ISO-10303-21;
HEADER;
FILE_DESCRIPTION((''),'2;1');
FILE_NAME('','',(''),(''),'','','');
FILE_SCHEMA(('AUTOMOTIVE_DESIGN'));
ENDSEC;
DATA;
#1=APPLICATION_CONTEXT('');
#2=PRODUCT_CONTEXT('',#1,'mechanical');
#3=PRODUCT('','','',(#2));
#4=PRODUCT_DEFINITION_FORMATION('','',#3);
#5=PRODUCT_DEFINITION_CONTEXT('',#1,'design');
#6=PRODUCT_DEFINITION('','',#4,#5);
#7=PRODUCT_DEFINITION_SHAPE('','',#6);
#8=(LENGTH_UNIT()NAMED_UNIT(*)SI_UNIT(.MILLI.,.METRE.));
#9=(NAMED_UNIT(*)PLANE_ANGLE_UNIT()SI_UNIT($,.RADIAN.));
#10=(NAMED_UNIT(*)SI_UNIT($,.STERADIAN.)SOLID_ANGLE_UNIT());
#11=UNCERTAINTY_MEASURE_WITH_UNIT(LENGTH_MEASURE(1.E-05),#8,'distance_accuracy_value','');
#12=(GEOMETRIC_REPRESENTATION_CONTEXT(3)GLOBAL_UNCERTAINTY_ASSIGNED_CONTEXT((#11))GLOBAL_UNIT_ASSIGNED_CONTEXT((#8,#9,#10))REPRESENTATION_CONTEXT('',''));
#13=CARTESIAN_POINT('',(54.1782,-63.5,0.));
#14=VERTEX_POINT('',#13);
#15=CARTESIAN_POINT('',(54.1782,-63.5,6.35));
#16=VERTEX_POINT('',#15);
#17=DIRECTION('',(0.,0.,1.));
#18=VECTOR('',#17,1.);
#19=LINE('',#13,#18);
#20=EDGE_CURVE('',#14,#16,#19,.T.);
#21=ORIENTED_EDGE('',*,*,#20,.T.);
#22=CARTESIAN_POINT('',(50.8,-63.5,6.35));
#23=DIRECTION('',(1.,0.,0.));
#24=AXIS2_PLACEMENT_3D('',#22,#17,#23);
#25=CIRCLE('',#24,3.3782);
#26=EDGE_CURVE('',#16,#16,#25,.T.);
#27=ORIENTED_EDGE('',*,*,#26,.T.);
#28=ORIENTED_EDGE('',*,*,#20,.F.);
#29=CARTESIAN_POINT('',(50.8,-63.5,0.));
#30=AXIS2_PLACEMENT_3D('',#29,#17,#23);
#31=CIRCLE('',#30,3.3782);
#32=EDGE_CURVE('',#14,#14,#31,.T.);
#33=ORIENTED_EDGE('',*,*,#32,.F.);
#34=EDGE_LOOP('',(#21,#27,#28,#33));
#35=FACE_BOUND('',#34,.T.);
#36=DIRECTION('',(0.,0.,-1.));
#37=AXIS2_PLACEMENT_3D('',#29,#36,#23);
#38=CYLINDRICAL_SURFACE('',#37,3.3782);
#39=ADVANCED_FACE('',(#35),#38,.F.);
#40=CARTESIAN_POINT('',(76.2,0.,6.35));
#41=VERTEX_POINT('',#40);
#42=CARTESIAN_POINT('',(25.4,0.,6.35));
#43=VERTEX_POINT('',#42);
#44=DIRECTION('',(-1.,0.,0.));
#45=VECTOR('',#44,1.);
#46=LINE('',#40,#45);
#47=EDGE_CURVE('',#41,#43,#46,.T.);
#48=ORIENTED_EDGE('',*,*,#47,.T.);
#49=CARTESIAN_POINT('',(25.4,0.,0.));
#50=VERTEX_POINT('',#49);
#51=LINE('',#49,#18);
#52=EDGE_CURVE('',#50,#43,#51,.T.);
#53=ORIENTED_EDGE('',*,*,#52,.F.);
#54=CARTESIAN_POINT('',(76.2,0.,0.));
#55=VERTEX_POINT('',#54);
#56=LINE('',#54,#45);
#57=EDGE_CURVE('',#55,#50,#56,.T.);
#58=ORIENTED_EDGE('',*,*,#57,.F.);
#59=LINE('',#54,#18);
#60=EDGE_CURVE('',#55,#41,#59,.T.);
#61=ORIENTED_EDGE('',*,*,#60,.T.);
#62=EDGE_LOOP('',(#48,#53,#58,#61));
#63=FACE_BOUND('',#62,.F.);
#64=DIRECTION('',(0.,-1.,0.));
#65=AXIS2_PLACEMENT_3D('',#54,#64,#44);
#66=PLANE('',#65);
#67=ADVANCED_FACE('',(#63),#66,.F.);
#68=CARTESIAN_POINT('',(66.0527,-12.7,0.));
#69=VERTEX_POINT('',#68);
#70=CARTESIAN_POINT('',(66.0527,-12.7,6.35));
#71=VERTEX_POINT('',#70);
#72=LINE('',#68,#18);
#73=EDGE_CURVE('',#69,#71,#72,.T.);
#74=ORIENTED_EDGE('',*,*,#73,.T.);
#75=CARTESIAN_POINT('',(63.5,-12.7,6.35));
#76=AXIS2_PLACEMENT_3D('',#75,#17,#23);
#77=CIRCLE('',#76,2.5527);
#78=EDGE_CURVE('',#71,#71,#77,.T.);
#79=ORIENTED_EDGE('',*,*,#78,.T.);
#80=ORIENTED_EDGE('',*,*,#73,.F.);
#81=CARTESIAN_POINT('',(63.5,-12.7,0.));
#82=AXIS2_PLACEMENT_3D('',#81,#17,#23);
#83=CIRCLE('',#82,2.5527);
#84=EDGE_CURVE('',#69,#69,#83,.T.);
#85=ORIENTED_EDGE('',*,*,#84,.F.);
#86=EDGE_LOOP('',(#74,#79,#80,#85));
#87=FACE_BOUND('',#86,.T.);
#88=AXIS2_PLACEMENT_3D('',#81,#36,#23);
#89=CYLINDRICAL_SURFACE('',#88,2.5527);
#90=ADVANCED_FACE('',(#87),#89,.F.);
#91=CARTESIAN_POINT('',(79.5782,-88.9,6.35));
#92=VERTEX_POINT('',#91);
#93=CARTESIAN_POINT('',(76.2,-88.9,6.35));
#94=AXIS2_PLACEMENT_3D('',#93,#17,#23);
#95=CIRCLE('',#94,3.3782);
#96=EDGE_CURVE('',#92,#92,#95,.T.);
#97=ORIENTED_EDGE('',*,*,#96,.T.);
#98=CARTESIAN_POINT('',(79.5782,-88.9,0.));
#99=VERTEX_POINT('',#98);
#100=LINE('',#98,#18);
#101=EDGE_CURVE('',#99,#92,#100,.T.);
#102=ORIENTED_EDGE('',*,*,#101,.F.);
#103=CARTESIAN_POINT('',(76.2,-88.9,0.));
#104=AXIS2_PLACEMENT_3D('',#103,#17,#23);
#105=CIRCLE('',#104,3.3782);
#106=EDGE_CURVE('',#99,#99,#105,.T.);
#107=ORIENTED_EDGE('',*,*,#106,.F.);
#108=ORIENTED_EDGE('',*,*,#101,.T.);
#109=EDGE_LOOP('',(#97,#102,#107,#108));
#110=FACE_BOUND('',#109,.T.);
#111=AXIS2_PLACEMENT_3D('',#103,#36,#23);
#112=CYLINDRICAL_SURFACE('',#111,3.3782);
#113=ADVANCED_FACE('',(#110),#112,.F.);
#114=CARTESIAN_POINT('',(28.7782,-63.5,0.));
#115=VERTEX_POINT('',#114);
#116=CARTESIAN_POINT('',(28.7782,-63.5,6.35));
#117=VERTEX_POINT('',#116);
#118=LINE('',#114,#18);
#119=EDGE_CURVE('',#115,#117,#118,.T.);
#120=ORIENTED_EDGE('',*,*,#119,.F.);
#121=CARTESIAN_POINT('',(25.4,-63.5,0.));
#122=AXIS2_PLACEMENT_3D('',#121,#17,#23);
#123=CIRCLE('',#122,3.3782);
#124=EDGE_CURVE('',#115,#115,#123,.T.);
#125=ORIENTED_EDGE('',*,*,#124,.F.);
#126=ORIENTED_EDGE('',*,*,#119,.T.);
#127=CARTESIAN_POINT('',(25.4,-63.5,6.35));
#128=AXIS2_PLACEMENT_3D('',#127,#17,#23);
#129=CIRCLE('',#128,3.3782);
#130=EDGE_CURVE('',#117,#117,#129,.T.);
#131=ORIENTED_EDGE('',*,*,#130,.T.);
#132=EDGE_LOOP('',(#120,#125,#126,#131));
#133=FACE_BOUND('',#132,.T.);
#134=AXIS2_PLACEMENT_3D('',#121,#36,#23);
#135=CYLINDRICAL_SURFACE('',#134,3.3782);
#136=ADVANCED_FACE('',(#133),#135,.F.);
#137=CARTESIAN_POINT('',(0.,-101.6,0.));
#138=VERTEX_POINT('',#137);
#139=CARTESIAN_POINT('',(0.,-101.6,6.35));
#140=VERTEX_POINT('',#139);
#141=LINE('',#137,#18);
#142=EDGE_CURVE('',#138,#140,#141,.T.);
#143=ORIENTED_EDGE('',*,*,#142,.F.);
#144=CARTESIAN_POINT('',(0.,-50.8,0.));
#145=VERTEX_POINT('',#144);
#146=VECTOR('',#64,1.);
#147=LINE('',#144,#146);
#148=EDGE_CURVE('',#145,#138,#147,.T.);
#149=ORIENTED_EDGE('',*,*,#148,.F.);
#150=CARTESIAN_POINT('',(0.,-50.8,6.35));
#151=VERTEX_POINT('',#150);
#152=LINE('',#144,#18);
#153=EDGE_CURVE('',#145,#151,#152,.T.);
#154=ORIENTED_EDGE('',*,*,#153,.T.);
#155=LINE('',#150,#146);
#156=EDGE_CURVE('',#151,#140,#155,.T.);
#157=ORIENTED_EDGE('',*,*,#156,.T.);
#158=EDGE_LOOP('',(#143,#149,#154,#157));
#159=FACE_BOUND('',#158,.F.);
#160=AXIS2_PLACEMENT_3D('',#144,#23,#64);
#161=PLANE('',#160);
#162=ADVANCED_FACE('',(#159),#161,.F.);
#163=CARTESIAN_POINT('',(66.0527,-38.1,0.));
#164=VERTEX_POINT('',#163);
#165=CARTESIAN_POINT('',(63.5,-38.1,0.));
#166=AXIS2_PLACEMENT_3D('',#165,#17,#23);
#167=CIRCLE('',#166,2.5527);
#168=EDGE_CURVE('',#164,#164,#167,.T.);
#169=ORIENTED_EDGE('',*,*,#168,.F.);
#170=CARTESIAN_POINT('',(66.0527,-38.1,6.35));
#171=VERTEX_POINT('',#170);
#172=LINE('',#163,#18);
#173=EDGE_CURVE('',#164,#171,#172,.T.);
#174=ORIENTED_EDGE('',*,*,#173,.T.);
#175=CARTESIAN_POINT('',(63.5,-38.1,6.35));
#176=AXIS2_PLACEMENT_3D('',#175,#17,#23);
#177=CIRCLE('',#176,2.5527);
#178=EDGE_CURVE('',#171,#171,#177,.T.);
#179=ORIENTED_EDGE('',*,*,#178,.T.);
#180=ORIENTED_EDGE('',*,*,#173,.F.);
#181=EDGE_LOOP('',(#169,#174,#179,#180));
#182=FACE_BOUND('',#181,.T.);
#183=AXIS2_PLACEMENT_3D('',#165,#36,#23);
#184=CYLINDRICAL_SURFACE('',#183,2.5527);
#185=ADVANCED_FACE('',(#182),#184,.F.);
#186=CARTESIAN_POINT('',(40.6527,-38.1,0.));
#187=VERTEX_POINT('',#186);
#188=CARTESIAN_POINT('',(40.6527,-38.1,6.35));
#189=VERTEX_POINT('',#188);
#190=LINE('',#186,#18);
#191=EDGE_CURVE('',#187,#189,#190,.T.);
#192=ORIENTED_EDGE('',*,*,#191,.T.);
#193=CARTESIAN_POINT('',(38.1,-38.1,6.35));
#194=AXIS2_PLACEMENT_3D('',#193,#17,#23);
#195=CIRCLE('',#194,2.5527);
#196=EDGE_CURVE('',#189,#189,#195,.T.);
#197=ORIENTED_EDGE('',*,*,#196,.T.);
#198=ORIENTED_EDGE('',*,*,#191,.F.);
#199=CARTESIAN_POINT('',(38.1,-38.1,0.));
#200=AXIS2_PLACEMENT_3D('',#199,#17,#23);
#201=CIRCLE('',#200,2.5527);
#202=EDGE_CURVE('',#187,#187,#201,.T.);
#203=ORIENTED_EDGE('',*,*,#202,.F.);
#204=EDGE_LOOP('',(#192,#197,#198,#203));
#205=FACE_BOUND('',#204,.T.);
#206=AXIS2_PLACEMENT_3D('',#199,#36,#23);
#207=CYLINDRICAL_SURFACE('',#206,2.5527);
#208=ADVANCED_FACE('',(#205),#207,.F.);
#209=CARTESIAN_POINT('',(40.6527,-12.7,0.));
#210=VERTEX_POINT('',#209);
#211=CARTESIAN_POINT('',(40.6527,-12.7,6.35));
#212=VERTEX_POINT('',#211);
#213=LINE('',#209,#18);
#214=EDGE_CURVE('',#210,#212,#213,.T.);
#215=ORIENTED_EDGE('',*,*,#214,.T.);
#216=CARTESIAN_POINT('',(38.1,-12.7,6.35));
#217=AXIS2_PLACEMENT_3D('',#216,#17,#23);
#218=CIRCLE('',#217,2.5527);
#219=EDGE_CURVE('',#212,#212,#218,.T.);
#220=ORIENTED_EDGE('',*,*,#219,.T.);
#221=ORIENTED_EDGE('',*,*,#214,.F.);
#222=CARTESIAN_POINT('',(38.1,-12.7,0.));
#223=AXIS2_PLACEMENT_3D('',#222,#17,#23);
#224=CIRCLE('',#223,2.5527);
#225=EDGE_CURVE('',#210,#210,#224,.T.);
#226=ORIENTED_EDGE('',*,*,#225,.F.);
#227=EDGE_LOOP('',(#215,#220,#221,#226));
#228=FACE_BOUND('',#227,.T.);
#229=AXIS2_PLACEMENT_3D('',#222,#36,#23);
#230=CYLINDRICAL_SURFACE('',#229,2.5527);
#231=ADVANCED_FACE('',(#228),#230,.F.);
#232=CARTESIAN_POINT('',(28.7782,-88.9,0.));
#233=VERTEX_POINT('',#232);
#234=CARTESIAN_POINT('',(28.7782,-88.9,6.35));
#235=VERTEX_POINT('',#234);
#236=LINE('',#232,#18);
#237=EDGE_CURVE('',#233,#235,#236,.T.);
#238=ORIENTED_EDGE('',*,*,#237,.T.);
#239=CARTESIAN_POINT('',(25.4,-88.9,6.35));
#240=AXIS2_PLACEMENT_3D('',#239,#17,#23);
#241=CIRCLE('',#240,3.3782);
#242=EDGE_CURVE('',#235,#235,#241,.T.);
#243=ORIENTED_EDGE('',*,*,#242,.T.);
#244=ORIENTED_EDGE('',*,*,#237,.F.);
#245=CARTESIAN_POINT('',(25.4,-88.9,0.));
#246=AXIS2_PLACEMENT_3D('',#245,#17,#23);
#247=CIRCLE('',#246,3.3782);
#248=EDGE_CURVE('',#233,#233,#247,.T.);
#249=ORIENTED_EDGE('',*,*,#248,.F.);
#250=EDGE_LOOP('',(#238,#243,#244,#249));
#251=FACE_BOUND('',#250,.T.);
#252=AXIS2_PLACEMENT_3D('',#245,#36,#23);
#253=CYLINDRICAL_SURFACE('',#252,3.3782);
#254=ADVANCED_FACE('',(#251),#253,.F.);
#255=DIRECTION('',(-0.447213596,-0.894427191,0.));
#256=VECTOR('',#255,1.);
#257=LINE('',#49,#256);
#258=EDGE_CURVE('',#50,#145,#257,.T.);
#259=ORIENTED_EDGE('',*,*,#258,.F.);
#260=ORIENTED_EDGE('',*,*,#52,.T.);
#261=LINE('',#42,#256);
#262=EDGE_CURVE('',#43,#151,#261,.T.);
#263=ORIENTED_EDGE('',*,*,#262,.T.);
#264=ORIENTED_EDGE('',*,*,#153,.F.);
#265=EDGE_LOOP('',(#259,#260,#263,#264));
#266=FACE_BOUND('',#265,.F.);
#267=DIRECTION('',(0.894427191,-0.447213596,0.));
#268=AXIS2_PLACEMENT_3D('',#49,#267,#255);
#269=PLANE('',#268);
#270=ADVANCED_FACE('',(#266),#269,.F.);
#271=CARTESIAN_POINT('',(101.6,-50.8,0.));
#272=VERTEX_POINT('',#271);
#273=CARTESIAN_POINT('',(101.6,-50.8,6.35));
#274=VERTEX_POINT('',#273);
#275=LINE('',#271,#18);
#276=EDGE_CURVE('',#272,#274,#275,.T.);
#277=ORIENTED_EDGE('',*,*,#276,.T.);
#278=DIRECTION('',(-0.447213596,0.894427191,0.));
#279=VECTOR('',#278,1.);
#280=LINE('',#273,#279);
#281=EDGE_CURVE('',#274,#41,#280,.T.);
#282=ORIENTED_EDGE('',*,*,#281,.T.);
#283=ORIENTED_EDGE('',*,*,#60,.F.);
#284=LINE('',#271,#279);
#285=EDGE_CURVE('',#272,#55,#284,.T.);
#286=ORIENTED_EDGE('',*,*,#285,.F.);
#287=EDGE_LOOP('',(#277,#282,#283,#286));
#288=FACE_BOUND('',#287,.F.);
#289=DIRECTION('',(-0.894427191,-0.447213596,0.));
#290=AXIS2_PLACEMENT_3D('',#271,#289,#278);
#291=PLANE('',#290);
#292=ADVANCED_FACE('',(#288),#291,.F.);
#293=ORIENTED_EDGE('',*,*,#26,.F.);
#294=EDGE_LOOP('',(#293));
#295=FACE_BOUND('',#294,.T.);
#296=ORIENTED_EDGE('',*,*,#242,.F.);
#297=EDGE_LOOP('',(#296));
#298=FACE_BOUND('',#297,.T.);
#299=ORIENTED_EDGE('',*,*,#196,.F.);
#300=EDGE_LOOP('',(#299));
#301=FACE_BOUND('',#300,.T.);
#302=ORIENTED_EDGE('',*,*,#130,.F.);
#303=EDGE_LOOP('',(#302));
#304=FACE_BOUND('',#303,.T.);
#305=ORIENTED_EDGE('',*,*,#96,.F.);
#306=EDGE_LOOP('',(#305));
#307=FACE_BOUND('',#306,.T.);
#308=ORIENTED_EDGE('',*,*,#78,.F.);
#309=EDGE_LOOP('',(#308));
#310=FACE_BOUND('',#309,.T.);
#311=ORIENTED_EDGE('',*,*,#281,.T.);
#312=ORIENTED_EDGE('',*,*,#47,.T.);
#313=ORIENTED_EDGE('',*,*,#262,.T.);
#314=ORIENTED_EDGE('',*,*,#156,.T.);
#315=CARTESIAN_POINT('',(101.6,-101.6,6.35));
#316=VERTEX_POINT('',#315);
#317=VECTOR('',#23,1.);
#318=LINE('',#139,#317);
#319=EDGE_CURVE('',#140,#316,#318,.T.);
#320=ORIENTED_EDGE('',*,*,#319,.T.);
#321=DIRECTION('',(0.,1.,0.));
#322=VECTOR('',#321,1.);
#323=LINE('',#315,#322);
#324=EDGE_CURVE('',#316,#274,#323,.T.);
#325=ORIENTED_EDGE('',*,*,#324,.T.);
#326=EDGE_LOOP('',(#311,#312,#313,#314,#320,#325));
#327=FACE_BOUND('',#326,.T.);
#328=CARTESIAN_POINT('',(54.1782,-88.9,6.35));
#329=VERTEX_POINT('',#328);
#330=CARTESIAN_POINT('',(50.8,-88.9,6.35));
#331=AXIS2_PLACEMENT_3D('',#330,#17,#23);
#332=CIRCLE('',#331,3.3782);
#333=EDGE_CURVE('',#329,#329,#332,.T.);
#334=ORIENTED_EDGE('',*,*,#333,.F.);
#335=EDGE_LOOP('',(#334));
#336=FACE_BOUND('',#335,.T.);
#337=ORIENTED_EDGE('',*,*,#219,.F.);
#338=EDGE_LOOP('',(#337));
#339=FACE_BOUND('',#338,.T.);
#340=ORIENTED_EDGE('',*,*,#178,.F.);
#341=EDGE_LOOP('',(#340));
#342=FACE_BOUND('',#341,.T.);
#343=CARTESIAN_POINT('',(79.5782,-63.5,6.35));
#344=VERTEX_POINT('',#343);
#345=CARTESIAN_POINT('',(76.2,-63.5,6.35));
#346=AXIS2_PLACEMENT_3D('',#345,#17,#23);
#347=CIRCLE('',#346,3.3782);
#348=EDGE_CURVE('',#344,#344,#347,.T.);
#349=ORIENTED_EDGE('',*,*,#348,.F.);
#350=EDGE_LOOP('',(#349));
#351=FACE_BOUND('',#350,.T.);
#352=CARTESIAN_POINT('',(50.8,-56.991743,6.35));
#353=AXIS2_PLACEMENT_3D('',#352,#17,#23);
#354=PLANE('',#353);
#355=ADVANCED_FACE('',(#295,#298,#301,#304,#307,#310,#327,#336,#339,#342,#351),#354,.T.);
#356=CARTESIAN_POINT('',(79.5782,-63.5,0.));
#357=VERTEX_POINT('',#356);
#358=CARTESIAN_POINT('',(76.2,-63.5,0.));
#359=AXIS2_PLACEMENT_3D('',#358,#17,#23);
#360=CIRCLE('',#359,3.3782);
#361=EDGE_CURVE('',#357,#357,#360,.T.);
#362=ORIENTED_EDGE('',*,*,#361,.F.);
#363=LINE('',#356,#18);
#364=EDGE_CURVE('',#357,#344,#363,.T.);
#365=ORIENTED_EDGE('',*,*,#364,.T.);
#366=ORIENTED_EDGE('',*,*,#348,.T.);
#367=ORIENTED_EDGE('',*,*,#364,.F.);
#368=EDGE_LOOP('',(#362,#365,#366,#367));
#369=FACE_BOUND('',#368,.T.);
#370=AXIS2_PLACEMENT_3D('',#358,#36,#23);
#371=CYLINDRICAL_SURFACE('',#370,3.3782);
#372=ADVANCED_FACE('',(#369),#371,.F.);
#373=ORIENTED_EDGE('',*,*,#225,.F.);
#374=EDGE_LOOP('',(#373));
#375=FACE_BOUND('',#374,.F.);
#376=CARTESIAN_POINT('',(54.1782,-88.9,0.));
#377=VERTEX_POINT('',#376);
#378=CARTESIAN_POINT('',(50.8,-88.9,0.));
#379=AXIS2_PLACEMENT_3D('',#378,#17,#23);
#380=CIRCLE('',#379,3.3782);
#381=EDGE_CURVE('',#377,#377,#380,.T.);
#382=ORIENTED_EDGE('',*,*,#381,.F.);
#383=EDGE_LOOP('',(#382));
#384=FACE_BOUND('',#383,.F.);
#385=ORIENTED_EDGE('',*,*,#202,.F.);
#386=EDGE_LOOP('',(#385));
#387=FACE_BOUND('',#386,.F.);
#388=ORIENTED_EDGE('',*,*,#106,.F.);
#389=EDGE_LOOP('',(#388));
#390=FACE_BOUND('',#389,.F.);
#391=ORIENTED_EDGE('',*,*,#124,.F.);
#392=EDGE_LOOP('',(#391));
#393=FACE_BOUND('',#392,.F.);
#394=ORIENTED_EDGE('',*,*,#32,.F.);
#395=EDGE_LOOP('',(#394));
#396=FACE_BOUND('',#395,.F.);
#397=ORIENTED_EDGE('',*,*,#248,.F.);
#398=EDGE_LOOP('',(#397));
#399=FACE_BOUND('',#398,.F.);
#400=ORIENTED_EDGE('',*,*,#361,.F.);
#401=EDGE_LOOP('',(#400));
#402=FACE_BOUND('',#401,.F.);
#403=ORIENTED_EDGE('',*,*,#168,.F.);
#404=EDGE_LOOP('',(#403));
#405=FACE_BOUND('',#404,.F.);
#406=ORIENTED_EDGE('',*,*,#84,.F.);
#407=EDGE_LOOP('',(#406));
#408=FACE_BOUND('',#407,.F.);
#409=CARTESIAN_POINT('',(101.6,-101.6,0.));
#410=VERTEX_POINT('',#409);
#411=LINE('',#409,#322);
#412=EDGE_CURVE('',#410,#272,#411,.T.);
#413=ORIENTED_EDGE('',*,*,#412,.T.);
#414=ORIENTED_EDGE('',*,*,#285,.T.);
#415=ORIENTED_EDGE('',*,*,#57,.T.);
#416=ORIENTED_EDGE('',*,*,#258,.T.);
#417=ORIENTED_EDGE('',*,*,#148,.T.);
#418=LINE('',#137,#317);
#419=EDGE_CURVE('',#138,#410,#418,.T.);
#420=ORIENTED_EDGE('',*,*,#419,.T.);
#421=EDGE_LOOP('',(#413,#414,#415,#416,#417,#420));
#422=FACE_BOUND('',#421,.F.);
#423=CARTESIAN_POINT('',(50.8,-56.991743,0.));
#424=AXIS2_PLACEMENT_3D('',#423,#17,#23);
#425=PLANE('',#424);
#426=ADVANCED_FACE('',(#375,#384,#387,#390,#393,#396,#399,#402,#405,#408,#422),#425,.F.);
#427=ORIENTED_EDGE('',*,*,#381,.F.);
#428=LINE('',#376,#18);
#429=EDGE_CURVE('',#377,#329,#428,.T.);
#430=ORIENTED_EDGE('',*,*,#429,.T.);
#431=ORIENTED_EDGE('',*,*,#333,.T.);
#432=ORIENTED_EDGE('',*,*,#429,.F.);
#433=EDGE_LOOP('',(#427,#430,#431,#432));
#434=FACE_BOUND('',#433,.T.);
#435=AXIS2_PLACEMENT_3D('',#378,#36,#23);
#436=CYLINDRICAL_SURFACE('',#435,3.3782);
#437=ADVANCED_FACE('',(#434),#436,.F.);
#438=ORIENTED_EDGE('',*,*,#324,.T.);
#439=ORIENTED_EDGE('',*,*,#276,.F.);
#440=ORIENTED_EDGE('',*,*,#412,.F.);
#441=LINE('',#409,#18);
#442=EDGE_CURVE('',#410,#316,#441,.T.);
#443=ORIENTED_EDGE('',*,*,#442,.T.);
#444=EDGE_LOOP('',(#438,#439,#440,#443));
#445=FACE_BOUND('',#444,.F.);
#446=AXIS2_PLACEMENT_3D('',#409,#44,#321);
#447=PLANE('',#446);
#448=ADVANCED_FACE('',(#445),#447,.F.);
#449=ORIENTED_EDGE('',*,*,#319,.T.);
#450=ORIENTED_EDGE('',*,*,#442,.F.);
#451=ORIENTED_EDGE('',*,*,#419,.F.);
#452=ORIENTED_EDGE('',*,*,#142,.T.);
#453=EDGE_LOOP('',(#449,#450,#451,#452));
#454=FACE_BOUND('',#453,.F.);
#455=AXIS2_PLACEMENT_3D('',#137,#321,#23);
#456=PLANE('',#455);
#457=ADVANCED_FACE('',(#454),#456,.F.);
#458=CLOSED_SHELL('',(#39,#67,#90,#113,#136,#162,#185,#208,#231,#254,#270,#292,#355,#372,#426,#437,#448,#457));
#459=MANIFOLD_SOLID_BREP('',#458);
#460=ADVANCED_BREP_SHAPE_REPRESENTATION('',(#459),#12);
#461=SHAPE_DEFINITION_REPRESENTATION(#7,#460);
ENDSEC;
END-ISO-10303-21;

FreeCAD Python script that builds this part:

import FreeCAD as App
import Part
import Sketcher

V = App.Vector
Q = App.Units.Quantity

doc = App.newDocument("Part")
body = doc.addObject("PartDesign::Body", "Body")

# Sketch on XY plane
sketch1 = body.newObject("Sketcher::SketchObject", "Sketch")
sketch1.AttachmentSupport = (doc.getObject("XY_Plane"), [""])
sketch1.MapMode = "FlatFace"
sketch1.addGeometry([
    Part.LineSegment(V(76.2, 0, 0), V(25.4, 0, 0)),  # 0
    Part.LineSegment(V(25.4, 0, 0), V(0, -50.8, 0)),  # 1
    Part.LineSegment(V(0, -50.8, 0), V(0, -101.6, 0)),  # 2
    Part.LineSegment(V(0, -101.6, 0), V(101.6, -101.6, 0)),  # 3
    Part.LineSegment(V(101.6, -101.6, 0), V(101.6, -50.8, 0)),  # 4
    Part.LineSegment(V(101.6, -50.8, 0), V(76.2, 0, 0)),  # 5
    Part.Circle(V(25.4, -88.9, 0), V(0, 0, 1), 3.4),  # 6
    Part.Circle(V(50.8, -88.9, 0), V(0, 0, 1), 3.4),  # 7
    Part.Circle(V(25.4, -63.5, 0), V(0, 0, 1), 3.4),  # 8
    Part.Circle(V(50.8, -63.5, 0), V(0, 0, 1), 3.4),  # 9
    Part.Circle(V(76.2, -88.9, 0), V(0, 0, 1), 3.4),  # 10
    Part.Circle(V(76.2, -63.5, 0), V(0, 0, 1), 3.4),  # 11
    Part.Circle(V(38.1, -38.1, 0), V(0, 0, 1), 2.6),  # 12
    Part.Circle(V(38.1, -12.7, 0), V(0, 0, 1), 2.6),  # 13
    Part.Circle(V(63.5, -38.1, 0), V(0, 0, 1), 2.6),  # 14
    Part.Circle(V(63.5, -12.7, 0), V(0, 0, 1), 2.6),  # 15
], False)
sketch1.addConstraint([
    Sketcher.Constraint("Coincident", 0, 2, 1, 1),
    Sketcher.Constraint("Coincident", 1, 2, 2, 1),
    Sketcher.Constraint("Coincident", 2, 2, 3, 1),
    Sketcher.Constraint("Coincident", 3, 2, 4, 1),
    Sketcher.Constraint("Coincident", 4, 2, 5, 1),
    Sketcher.Constraint("Coincident", 5, 2, 0, 1),
    Sketcher.Constraint("Horizontal", 0),
    Sketcher.Constraint("Vertical", 2),
    Sketcher.Constraint("Horizontal", 3),
    Sketcher.Constraint("Vertical", 4),
    Sketcher.Constraint("Equal", 6, 7),
    Sketcher.Constraint("Equal", 7, 8),
    Sketcher.Constraint("Equal", 8, 9),
    Sketcher.Constraint("Equal", 9, 10),
    Sketcher.Constraint("Equal", 10, 11),
    Sketcher.Constraint("Equal", 12, 13),
    Sketcher.Constraint("Equal", 13, 14),
    Sketcher.Constraint("Equal", 14, 15),
    Sketcher.Constraint("PointOnObject", 0, 2, -1),
    Sketcher.Constraint("PointOnObject", 1, 2, -2),
    Sketcher.Constraint("Horizontal", 6, 3, 7, 3),
    Sketcher.Constraint("Horizontal", 8, 3, 9, 3),
    Sketcher.Constraint("Horizontal", 7, 3, 10, 3),
    Sketcher.Constraint("Horizontal", 9, 3, 11, 3),
    Sketcher.Constraint("Horizontal", 12, 3, 14, 3),
    Sketcher.Constraint("Horizontal", 13, 3, 15, 3),
    Sketcher.Constraint("Horizontal", 1, 2, 4, 2),
    Sketcher.Constraint("Vertical", 6, 3, 8, 3),
    Sketcher.Constraint("Vertical", 7, 3, 9, 3),
    Sketcher.Constraint("Vertical", 10, 3, 11, 3),
    Sketcher.Constraint("Vertical", 12, 3, 13, 3),
    Sketcher.Constraint("Vertical", 14, 3, 15, 3),
    Sketcher.Constraint("Vertical", 8, 3, 0, 2),
    Sketcher.Constraint("Vertical", 11, 3, 5, 2),
    Sketcher.Constraint("Equal", 0, 2),
    Sketcher.Constraint("Equal", 1, 5),
    Sketcher.Constraint("DistanceX", 0, 2, 0, 1, Q("2 in")),
    Sketcher.Constraint("DistanceX", 3, 1, 3, 2, Q("4 in")),
    Sketcher.Constraint("Diameter", 6, Q("0.266 in")),
    Sketcher.Constraint("Diameter", 12, Q("0.201 in")),
    Sketcher.Constraint("DistanceX", -1, 1, 7, 3, Q("2 in")),
    Sketcher.Constraint("DistanceY", 1, 2, -1, 1, Q("2 in")),
    Sketcher.Constraint("DistanceY", 6, 3, 8, 3, Q("1 in")),
    Sketcher.Constraint("DistanceY", 9, 3, 12, 3, Q("1 in")),
    Sketcher.Constraint("DistanceY", 12, 3, 13, 3, Q("1 in")),
    Sketcher.Constraint("DistanceX", 12, 3, 14, 3, Q("1 in")),
    Sketcher.Constraint("DistanceY", 6, 3, -1, 1, Q("3.5 in")),
    Sketcher.Constraint("DistanceX", -1, 1, 12, 3, Q("1.5 in")),
])
pad1 = body.newObject("PartDesign::Pad", "Pad")
pad1.Profile = sketch1
pad1.Length = Q("0.25 in")

doc.recompute()
